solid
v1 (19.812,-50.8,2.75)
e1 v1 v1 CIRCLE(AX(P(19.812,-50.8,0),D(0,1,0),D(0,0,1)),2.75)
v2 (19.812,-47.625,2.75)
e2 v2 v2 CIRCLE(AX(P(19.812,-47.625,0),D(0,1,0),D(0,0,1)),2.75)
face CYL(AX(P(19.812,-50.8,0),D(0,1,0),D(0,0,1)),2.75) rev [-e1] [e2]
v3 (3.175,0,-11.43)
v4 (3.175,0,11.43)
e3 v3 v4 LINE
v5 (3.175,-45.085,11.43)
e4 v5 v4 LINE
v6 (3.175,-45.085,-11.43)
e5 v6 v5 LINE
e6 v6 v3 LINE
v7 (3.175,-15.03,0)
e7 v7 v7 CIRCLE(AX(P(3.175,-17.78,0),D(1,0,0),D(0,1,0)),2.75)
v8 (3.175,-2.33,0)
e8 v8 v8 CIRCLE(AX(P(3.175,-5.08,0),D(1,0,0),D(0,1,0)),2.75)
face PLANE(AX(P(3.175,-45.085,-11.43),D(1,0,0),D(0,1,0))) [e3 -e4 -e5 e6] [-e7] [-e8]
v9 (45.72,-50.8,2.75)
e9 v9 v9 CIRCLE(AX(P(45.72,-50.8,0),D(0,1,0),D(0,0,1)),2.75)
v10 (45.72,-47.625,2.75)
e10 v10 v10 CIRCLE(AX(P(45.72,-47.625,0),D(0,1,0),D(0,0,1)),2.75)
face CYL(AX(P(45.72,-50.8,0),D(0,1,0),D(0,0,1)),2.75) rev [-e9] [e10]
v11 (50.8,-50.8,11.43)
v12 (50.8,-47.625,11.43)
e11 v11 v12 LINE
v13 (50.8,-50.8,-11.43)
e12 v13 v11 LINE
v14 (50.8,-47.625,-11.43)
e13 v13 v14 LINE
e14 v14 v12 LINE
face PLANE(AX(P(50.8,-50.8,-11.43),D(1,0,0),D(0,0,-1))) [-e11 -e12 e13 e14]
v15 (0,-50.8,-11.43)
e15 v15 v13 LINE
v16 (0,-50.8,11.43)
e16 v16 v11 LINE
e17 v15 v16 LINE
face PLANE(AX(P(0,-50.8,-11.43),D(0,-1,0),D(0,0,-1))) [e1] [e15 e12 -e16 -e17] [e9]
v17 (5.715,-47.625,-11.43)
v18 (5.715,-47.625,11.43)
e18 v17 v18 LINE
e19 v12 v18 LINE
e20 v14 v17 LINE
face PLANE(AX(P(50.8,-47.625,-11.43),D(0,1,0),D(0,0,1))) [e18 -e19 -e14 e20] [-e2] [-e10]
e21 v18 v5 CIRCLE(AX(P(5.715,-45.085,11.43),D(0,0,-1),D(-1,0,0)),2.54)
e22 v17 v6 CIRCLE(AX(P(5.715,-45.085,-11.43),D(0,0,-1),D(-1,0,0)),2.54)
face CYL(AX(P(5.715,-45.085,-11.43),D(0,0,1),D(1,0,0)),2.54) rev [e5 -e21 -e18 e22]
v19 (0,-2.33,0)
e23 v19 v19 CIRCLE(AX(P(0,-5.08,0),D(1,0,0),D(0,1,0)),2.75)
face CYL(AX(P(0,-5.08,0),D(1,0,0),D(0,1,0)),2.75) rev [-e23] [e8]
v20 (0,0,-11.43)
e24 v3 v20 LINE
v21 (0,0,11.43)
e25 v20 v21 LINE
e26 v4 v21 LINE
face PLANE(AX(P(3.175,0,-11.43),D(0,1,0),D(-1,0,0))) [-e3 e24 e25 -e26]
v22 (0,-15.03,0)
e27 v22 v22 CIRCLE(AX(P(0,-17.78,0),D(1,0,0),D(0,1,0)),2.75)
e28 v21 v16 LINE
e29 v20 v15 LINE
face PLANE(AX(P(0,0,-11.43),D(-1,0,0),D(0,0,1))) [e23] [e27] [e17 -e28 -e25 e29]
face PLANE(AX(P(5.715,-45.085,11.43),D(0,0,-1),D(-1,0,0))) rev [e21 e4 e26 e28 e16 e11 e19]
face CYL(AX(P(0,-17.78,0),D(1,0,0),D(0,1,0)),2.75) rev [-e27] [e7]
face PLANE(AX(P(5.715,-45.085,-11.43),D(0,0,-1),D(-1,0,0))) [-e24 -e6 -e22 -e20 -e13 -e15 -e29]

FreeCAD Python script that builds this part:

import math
import FreeCAD as App
import Part
import Sketcher
from FreeCAD import Vector
Q = App.Units.Quantity

doc = App.newDocument("Part")
body = doc.addObject("PartDesign::Body", "Body")

# Sketch on XY plane
sketch1 = body.newObject("Sketcher::SketchObject", "Sketch")
sketch1.AttachmentSupport = (doc.getObject("XY_Plane"), [""])
sketch1.MapMode = "FlatFace"
sketch1.addGeometry([
    Part.LineSegment(Vector(0, 0, 0), Vector(0, -50.8, 0)),  # 0
    Part.LineSegment(Vector(0, -50.8, 0), Vector(50.8, -50.8, 0)),  # 1
    Part.LineSegment(Vector(50.8, -50.8, 0), Vector(50.8, -47.625, 0)),  # 2
    Part.LineSegment(Vector(50.8, -47.625, 0), Vector(5.715, -47.625, 0)),  # 3
    Part.ArcOfCircle(Part.Circle(Vector(5.715, -45.085, 0), Vector(0, 0, 1), 2.54), math.radians(-180), math.radians(-90)),  # 4
    Part.LineSegment(Vector(3.175, -45.085, 0), Vector(3.175, 0, 0)),  # 5
    Part.LineSegment(Vector(3.175, 0, 0), Vector(0, 0, 0)),  # 6
], False)
sketch1.addConstraint([
    Sketcher.Constraint("Coincident", 0, 2, 1, 1),
    Sketcher.Constraint("Coincident", 1, 2, 2, 1),
    Sketcher.Constraint("Coincident", 2, 2, 3, 1),
    Sketcher.Constraint("Tangent", 3, 2, 4, 2),
    Sketcher.Constraint("Tangent", 4, 1, 5, 1),
    Sketcher.Constraint("Coincident", 5, 2, 6, 1),
    Sketcher.Constraint("Coincident", 6, 2, 0, 1),
    Sketcher.Constraint("Vertical", 0),
    Sketcher.Constraint("Horizontal", 1),
    Sketcher.Constraint("Vertical", 2),
    Sketcher.Constraint("Horizontal", 3),
    Sketcher.Constraint("Vertical", 5),
    Sketcher.Constraint("Horizontal", 6),
    Sketcher.Constraint("Coincident", 6, 2, -1, 1),
    Sketcher.Constraint("Equal", 1, 0),
    Sketcher.Constraint("Equal", 6, 2),
    Sketcher.Constraint("Radius", 4, Q("0.1 in")),
    Sketcher.Constraint("DistanceX", 1, 1, 1, 2, Q("2 in")),
    Sketcher.Constraint("DistanceX", 3, 2, 3, 1, Q("1.775 in")),
])
pad1 = body.newObject("PartDesign::Pad", "Pad")
pad1.Profile = sketch1
pad1.Length = Q("0.9 in")
pad1.Midplane = True

# Sketch on YZ plane
sketch2 = body.newObject("Sketcher::SketchObject", "Sketch001")
sketch2.AttachmentSupport = (doc.getObject("YZ_Plane"), [""])
sketch2.MapMode = "FlatFace"
sketch2.AttachmentOffset = App.Placement(Vector(0, 0, 0.125 * 25.4), App.Rotation())
sketch2.addGeometry([
    Part.Circle(Vector(-5.08, 0, 0), Vector(0, 0, 1), 2.75),
    Part.Circle(Vector(-17.78, 0, 0), Vector(0, 0, 1), 2.75),
], False)
sketch2.addConstraint([
    Sketcher.Constraint("Equal", 0, 1),
    Sketcher.Constraint("PointOnObject", 0, 3, -1),
    Sketcher.Constraint("PointOnObject", 1, 3, -1),
    Sketcher.Constraint("DistanceX", 0, 3, -1, 1, Q("0.2 in")),
    Sketcher.Constraint("DistanceX", 1, 3, -1, 1, Q("0.7 in")),
    Sketcher.Constraint("Diameter", 0, 5.5),
])
pocket1 = body.newObject("PartDesign::Pocket", "Pocket")
pocket1.Profile = sketch2
pocket1.Type = "ThroughAll"

# Sketch on XZ plane
sketch3 = body.newObject("Sketcher::SketchObject", "Sketch002")
sketch3.AttachmentSupport = (doc.getObject("XZ_Plane"), [""])
sketch3.MapMode = "FlatFace"
sketch3.AttachmentOffset = App.Placement(Vector(0, 0, 1.875 * 25.4), App.Rotation())
sketch3.addGeometry([
    Part.Circle(Vector(19.812, 0, 0), Vector(0, 0, 1), 2.75),
    Part.Circle(Vector(45.72, 0, 0), Vector(0, 0, 1), 2.75),
], False)
sketch3.addConstraint([
    Sketcher.Constraint("Equal", 0, 1),
    Sketcher.Constraint("PointOnObject", 0, 3, -1),
    Sketcher.Constraint("PointOnObject", 1, 3, -1),
    Sketcher.Constraint("DistanceX", -1, 1, 1, 3, Q("1.8 in")),
    Sketcher.Constraint("Diameter", 0, 5.5),
    Sketcher.Constraint("DistanceX", -1, 1, 0, 3, Q("0.78 in")),
])
pocket2 = body.newObject("PartDesign::Pocket", "Pocket001")
pocket2.Profile = sketch3
pocket2.Type = "ThroughAll"
pocket2.Reversed = True

doc.recompute()
